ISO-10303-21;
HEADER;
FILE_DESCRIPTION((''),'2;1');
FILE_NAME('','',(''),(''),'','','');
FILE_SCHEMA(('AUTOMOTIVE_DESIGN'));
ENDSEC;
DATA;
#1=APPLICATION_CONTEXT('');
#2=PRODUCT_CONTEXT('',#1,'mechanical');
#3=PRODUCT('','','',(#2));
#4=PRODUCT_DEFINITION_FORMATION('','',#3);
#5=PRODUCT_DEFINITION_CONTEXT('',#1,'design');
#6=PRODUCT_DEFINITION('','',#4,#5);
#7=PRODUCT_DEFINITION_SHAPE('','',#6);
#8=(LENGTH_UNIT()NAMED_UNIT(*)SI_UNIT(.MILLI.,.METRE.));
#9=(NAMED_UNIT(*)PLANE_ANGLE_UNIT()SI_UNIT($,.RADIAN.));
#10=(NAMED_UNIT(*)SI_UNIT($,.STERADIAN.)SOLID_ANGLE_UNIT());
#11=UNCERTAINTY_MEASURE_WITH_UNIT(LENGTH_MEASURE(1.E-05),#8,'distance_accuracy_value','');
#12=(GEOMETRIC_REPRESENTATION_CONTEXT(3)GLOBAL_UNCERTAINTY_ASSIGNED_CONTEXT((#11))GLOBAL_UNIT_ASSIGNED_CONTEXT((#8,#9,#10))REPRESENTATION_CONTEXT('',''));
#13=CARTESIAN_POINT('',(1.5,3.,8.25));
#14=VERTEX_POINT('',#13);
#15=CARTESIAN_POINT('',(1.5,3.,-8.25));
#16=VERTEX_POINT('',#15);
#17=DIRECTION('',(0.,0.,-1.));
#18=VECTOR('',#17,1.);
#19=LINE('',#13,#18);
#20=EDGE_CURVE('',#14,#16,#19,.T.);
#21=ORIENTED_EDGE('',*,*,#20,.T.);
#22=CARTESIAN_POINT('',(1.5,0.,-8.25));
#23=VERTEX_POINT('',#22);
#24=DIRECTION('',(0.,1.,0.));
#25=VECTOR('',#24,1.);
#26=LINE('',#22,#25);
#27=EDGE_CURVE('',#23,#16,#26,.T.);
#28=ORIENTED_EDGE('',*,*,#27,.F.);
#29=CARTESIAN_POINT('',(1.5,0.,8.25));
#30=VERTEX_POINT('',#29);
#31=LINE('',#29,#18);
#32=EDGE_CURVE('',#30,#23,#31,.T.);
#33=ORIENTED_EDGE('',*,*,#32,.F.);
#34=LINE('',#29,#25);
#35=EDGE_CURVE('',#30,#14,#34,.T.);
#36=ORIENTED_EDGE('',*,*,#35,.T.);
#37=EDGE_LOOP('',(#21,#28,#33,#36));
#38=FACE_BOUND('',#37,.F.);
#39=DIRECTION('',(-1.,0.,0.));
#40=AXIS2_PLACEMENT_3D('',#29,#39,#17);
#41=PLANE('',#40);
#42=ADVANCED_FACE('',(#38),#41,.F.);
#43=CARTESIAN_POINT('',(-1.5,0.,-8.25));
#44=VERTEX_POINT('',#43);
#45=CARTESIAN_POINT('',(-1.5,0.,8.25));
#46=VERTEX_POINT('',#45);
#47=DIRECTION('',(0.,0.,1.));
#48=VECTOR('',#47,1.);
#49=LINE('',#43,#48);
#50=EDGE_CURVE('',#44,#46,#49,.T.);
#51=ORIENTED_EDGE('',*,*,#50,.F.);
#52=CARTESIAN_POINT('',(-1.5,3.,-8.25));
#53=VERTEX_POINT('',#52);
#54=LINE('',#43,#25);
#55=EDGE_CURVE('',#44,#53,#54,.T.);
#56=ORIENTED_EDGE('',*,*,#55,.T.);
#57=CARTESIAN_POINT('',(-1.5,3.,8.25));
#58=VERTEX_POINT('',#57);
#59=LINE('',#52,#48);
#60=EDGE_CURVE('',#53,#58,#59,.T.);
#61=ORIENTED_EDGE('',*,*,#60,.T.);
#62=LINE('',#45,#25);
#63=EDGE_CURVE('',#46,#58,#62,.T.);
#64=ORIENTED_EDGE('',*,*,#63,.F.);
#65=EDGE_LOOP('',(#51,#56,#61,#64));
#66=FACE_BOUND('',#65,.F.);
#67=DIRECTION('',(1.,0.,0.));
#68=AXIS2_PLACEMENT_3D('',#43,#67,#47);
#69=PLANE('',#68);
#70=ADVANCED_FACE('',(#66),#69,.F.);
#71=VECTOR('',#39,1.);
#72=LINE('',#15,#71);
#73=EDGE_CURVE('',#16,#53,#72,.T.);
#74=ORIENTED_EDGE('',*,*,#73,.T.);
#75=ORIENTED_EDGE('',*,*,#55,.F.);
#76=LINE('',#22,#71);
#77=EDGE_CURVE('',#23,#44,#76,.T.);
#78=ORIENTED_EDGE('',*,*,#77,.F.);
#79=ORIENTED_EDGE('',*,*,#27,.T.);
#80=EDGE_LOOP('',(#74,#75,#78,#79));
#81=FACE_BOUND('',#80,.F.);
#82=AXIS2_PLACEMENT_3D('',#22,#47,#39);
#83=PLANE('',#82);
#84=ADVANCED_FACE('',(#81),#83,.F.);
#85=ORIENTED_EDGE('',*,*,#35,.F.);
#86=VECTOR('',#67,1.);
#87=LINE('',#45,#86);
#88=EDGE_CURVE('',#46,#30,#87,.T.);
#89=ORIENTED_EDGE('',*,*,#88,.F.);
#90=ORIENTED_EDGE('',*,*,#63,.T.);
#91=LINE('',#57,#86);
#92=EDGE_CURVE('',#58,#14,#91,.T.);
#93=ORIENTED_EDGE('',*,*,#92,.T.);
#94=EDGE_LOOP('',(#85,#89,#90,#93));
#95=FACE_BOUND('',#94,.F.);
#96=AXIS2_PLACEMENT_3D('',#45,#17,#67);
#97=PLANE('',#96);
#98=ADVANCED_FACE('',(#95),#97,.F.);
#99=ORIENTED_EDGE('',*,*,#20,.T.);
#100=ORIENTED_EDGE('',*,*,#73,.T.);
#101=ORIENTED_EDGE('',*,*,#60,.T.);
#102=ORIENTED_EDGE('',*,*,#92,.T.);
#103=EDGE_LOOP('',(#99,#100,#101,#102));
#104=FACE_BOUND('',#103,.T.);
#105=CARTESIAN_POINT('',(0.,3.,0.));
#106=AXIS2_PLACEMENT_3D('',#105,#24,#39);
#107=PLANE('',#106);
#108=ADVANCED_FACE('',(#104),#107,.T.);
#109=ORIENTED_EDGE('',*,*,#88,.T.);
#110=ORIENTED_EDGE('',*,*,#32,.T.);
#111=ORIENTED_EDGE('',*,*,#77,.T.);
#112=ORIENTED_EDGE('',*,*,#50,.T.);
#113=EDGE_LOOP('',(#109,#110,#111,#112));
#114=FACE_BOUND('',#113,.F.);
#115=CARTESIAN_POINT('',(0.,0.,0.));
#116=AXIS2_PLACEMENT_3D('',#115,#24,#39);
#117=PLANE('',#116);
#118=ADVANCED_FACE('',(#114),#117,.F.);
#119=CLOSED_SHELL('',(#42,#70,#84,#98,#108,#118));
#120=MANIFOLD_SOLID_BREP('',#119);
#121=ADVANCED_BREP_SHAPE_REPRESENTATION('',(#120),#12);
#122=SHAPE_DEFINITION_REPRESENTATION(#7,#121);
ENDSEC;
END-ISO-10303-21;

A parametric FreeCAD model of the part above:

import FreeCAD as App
import Part
import Sketcher
from FreeCAD import Vector


def add_polygon(sketch, points):
    """Adds a closed chain of lines whose ends are joined by coincident constraints."""
    first, n = sketch.GeometryCount, len(points)
    for a, b in zip(points, points[1:] + points[:1]):
        sketch.addGeometry(Part.LineSegment(App.Vector(*a, 0), App.Vector(*b, 0)), False)
    for i in range(n):
        sketch.addConstraint(Sketcher.Constraint("Coincident", first + i, 2, first + (i + 1) % n, 1))

doc = App.newDocument("Part")
body = doc.addObject("PartDesign::Body", "Body")

# Sketch on XZ plane
sketch1 = doc.addObject("Sketcher::SketchObject", "Sketch")
body.addObject(sketch1)
sketch1.AttachmentSupport = (doc.XZ_Plane, [""])
sketch1.MapMode = "FlatFace"
add_polygon(sketch1, [(-1.5, -8.2), (-1.5, 8.2), (1.5, 8.2), (1.5, -8.2)])  # lines 0-3
sketch1.addConstraint([
    Sketcher.Constraint("Vertical", 0),
    Sketcher.Constraint("Horizontal", 1),
    Sketcher.Constraint("Vertical", 2),
    Sketcher.Constraint("Horizontal", 3),
    Sketcher.Constraint("Symmetric", 0, 2, 2, 2, -1, 1),
    Sketcher.Constraint("DistanceX", 1, 1, 1, 2, 3.0),
    Sketcher.Constraint("DistanceY", 0, 1, 0, 2, 16.5),
])
pad1 = doc.addObject("PartDesign::Pad", "Pad")
body.addObject(pad1)
pad1.Profile = sketch1
pad1.Length = 3
pad1.Reversed = True

doc.recompute()
